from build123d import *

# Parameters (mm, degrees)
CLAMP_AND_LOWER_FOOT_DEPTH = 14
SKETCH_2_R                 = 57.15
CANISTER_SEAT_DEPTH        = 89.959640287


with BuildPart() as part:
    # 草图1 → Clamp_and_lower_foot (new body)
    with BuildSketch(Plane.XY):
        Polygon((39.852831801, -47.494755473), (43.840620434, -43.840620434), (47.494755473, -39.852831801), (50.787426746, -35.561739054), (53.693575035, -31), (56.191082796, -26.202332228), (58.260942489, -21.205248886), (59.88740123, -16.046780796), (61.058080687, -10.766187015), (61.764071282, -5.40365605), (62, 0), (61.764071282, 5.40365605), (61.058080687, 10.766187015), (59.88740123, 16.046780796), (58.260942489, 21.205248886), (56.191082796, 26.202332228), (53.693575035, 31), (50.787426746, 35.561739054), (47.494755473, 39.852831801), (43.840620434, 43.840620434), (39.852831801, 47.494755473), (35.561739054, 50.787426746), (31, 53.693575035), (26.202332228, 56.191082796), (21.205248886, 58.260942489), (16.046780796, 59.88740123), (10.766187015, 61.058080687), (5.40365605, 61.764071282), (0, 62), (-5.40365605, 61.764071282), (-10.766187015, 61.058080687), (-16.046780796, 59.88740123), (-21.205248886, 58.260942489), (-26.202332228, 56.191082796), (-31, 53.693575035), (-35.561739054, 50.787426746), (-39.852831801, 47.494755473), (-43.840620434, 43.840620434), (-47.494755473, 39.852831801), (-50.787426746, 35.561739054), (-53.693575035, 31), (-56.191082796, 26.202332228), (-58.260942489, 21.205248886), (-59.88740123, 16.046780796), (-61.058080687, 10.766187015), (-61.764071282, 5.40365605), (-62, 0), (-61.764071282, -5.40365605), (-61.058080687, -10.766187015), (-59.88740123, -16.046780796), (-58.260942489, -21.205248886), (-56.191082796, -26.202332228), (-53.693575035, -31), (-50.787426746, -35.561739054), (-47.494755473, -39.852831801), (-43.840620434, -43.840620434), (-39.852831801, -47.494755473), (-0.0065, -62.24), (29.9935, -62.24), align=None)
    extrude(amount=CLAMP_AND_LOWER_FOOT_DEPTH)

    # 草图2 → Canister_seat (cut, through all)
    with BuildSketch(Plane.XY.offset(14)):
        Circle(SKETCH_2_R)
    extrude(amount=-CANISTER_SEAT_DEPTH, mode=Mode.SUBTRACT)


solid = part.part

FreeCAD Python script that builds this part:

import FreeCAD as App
import Part
import Sketcher

V = App.Vector
Q = App.Units.Quantity

doc = App.newDocument("Part")
params = doc.addObject("Spreadsheet::Sheet", "Params")
for row, (alias, value) in enumerate([
    ("sketch1_width", "30 mm"),
    ("pad1_length", "14 mm"),
    ("sketch2_diameter", "114.3 mm"),
], start=1):
    params.set(f"A{row}", alias)
    params.set(f"B{row}", "=" + value)
    params.setAlias(f"B{row}", alias)

body = doc.addObject("PartDesign::Body", "Body")

sketch1 = body.newObject("Sketcher::SketchObject", "Sketch")
sketch1.AttachmentSupport = (doc.getObject("XY_Plane"), [""])
sketch1.MapMode = "FlatFace"
sketch1.addGeometry([
    Part.LineSegment(V(40, -47, 0), V(44, -44, 0)),
    Part.LineSegment(V(44, -44, 0), V(47, -40, 0)),
    Part.LineSegment(V(47, -40, 0), V(51, -36, 0)),
    Part.LineSegment(V(51, -36, 0), V(54, -31, 0)),
    Part.LineSegment(V(54, -31, 0), V(56, -26, 0)),
    Part.LineSegment(V(56, -26, 0), V(58, -21, 0)),
    Part.LineSegment(V(58, -21, 0), V(60, -16, 0)),
    Part.LineSegment(V(60, -16, 0), V(61, -11, 0)),
    Part.LineSegment(V(61, -11, 0), V(62, -5, 0)),
    Part.LineSegment(V(62, -5, 0), V(62, 0, 0)),
    Part.LineSegment(V(62, 0, 0), V(62, 5, 0)),
    Part.LineSegment(V(62, 5, 0), V(61, 11, 0)),
    Part.LineSegment(V(61, 11, 0), V(60, 16, 0)),
    Part.LineSegment(V(60, 16, 0), V(58, 21, 0)),
    Part.LineSegment(V(58, 21, 0), V(56, 26, 0)),
    Part.LineSegment(V(56, 26, 0), V(54, 31, 0)),
    Part.LineSegment(V(54, 31, 0), V(51, 36, 0)),
    Part.LineSegment(V(51, 36, 0), V(47, 40, 0)),
    Part.LineSegment(V(47, 40, 0), V(44, 44, 0)),
    Part.LineSegment(V(44, 44, 0), V(40, 47, 0)),
    Part.LineSegment(V(40, 47, 0), V(36, 51, 0)),
    Part.LineSegment(V(36, 51, 0), V(31, 54, 0)),
    Part.LineSegment(V(31, 54, 0), V(26, 56, 0)),
    Part.LineSegment(V(26, 56, 0), V(21, 58, 0)),
    Part.LineSegment(V(21, 58, 0), V(16, 60, 0)),
    Part.LineSegment(V(16, 60, 0), V(11, 61, 0)),
    Part.LineSegment(V(11, 61, 0), V(5, 62, 0)),
    Part.LineSegment(V(5, 62, 0), V(0, 62, 0)),
    Part.LineSegment(V(0, 62, 0), V(-5, 62, 0)),
    Part.LineSegment(V(-5, 62, 0), V(-11, 61, 0)),
    Part.LineSegment(V(-11, 61, 0), V(-16, 60, 0)),
    Part.LineSegment(V(-16, 60, 0), V(-21, 58, 0)),
    Part.LineSegment(V(-21, 58, 0), V(-26, 56, 0)),
    Part.LineSegment(V(-26, 56, 0), V(-31, 54, 0)),
    Part.LineSegment(V(-31, 54, 0), V(-36, 51, 0)),
    Part.LineSegment(V(-36, 51, 0), V(-40, 47, 0)),
    Part.LineSegment(V(-40, 47, 0), V(-44, 44, 0)),
    Part.LineSegment(V(-44, 44, 0), V(-47, 40, 0)),
    Part.LineSegment(V(-47, 40, 0), V(-51, 36, 0)),
    Part.LineSegment(V(-51, 36, 0), V(-54, 31, 0)),
    Part.LineSegment(V(-54, 31, 0), V(-56, 26, 0)),
    Part.LineSegment(V(-56, 26, 0), V(-58, 21, 0)),
    Part.LineSegment(V(-58, 21, 0), V(-60, 16, 0)),
    Part.LineSegment(V(-60, 16, 0), V(-61, 11, 0)),
    Part.LineSegment(V(-61, 11, 0), V(-62, 5, 0)),
    Part.LineSegment(V(-62, 5, 0), V(-62, 0, 0)),
    Part.LineSegment(V(-62, 0, 0), V(-62, -5, 0)),
    Part.LineSegment(V(-62, -5, 0), V(-61, -11, 0)),
    Part.LineSegment(V(-61, -11, 0), V(-60, -16, 0)),
    Part.LineSegment(V(-60, -16, 0), V(-58, -21, 0)),
    Part.LineSegment(V(-58, -21, 0), V(-56, -26, 0)),
    Part.LineSegment(V(-56, -26, 0), V(-54, -31, 0)),
    Part.LineSegment(V(-54, -31, 0), V(-51, -36, 0)),
    Part.LineSegment(V(-51, -36, 0), V(-47, -40, 0)),
    Part.LineSegment(V(-47, -40, 0), V(-44, -44, 0)),
    Part.LineSegment(V(-44, -44, 0), V(-40, -47, 0)),
    Part.LineSegment(V(-40, -47, 0), V(0, -62, 0)),
    Part.LineSegment(V(0, -62, 0), V(30, -62, 0)),
    Part.LineSegment(V(30, -62, 0), V(40, -47, 0)),
], False)
sketch1.addConstraint([
    Sketcher.Constraint("Coincident", 0, 2, 1, 1),
    Sketcher.Constraint("Coincident", 1, 2, 2, 1),
    Sketcher.Constraint("Coincident", 2, 2, 3, 1),
    Sketcher.Constraint("Coincident", 3, 2, 4, 1),
    Sketcher.Constraint("Coincident", 4, 2, 5, 1),
    Sketcher.Constraint("Coincident", 5, 2, 6, 1),
    Sketcher.Constraint("Coincident", 6, 2, 7, 1),
    Sketcher.Constraint("Coincident", 7, 2, 8, 1),
    Sketcher.Constraint("Coincident", 8, 2, 9, 1),
    Sketcher.Constraint("Coincident", 9, 2, 10, 1),
    Sketcher.Constraint("Coincident", 10, 2, 11, 1),
    Sketcher.Constraint("Coincident", 11, 2, 12, 1),
    Sketcher.Constraint("Coincident", 12, 2, 13, 1),
    Sketcher.Constraint("Coincident", 13, 2, 14, 1),
    Sketcher.Constraint("Coincident", 14, 2, 15, 1),
    Sketcher.Constraint("Coincident", 15, 2, 16, 1),
    Sketcher.Constraint("Coincident", 16, 2, 17, 1),
    Sketcher.Constraint("Coincident", 17, 2, 18, 1),
    Sketcher.Constraint("Coincident", 18, 2, 19, 1),
    Sketcher.Constraint("Coincident", 19, 2, 20, 1),
    Sketcher.Constraint("Coincident", 20, 2, 21, 1),
    Sketcher.Constraint("Coincident", 21, 2, 22, 1),
    Sketcher.Constraint("Coincident", 22, 2, 23, 1),
    Sketcher.Constraint("Coincident", 23, 2, 24, 1),
    Sketcher.Constraint("Coincident", 24, 2, 25, 1),
    Sketcher.Constraint("Coincident", 25, 2, 26, 1),
    Sketcher.Constraint("Coincident", 26, 2, 27, 1),
    Sketcher.Constraint("Coincident", 27, 2, 28, 1),
    Sketcher.Constraint("Coincident", 28, 2, 29, 1),
    Sketcher.Constraint("Coincident", 29, 2, 30, 1),
    Sketcher.Constraint("Coincident", 30, 2, 31, 1),
    Sketcher.Constraint("Coincident", 31, 2, 32, 1),
    Sketcher.Constraint("Coincident", 32, 2, 33, 1),
    Sketcher.Constraint("Coincident", 33, 2, 34, 1),
    Sketcher.Constraint("Coincident", 34, 2, 35, 1),
    Sketcher.Constraint("Coincident", 35, 2, 36, 1),
    Sketcher.Constraint("Coincident", 36, 2, 37, 1),
    Sketcher.Constraint("Coincident", 37, 2, 38, 1),
    Sketcher.Constraint("Coincident", 38, 2, 39, 1),
    Sketcher.Constraint("Coincident", 39, 2, 40, 1),
    Sketcher.Constraint("Coincident", 40, 2, 41, 1),
    Sketcher.Constraint("Coincident", 41, 2, 42, 1),
    Sketcher.Constraint("Coincident", 42, 2, 43, 1),
    Sketcher.Constraint("Coincident", 43, 2, 44, 1),
    Sketcher.Constraint("Coincident", 44, 2, 45, 1),
    Sketcher.Constraint("Coincident", 45, 2, 46, 1),
    Sketcher.Constraint("Coincident", 46, 2, 47, 1),
    Sketcher.Constraint("Coincident", 47, 2, 48, 1),
    Sketcher.Constraint("Coincident", 48, 2, 49, 1),
    Sketcher.Constraint("Coincident", 49, 2, 50, 1),
    Sketcher.Constraint("Coincident", 50, 2, 51, 1),
    Sketcher.Constraint("Coincident", 51, 2, 52, 1),
    Sketcher.Constraint("Coincident", 52, 2, 53, 1),
    Sketcher.Constraint("Coincident", 53, 2, 54, 1),
    Sketcher.Constraint("Coincident", 54, 2, 55, 1),
    Sketcher.Constraint("Coincident", 55, 2, 56, 1),
    Sketcher.Constraint("Coincident", 56, 2, 57, 1),
    Sketcher.Constraint("Coincident", 57, 2, 58, 1),
    Sketcher.Constraint("Coincident", 58, 2, 0, 1),
    Sketcher.Constraint("Horizontal", 57),
    Sketcher.Constraint("Symmetric", 0, 2, 36, 2, -1, 1),
    Sketcher.Constraint("Symmetric", 1, 2, 37, 2, -1, 1),
    Sketcher.Constraint("Symmetric", 2, 2, 38, 2, -1, 1),
    Sketcher.Constraint("Symmetric", 3, 2, 39, 2, -1, 1),
    Sketcher.Constraint("Symmetric", 4, 2, 40, 2, -1, 1),
    Sketcher.Constraint("Symmetric", 5, 2, 41, 2, -1, 1),
    Sketcher.Constraint("Symmetric", 6, 2, 42, 2, -1, 1),
    Sketcher.Constraint("Symmetric", 7, 2, 43, 2, -1, 1),
    Sketcher.Constraint("Symmetric", 8, 2, 44, 2, -1, 1),
    Sketcher.Constraint("Symmetric", 9, 2, 45, 2, -1, 1),
    Sketcher.Constraint("Symmetric", 10, 2, 46, 2, -1, 1),
    Sketcher.Constraint("Symmetric", 11, 2, 47, 2, -1, 1),
    Sketcher.Constraint("Symmetric", 12, 2, 48, 2, -1, 1),
    Sketcher.Constraint("Symmetric", 13, 2, 49, 2, -1, 1),
    Sketcher.Constraint("Symmetric", 14, 2, 50, 2, -1, 1),
    Sketcher.Constraint("Symmetric", 15, 2, 51, 2, -1, 1),
    Sketcher.Constraint("Symmetric", 16, 2, 52, 2, -1, 1),
    Sketcher.Constraint("Symmetric", 17, 2, 53, 2, -1, 1),
    Sketcher.Constraint("Symmetric", 18, 2, 54, 2, -1, 1),
    Sketcher.Constraint("Symmetric", 19, 2, 55, 2, -1, 1),
    Sketcher.Constraint("Symmetric", 35, 2, 58, 2, -1, 1),
    Sketcher.Constraint("Symmetric", 26, 2, 28, 2, -2),
    Sketcher.Constraint("Symmetric", 25, 2, 29, 2, -2),
    Sketcher.Constraint("Symmetric", 24, 2, 30, 2, -2),
    Sketcher.Constraint("Symmetric", 23, 2, 31, 2, -2),
    Sketcher.Constraint("Symmetric", 22, 2, 32, 2, -2),
    Sketcher.Constraint("Symmetric", 21, 2, 33, 2, -2),
    Sketcher.Constraint("Symmetric", 20, 2, 34, 2, -2),
    Sketcher.Constraint("Symmetric", 19, 2, 35, 2, -2),
    Sketcher.Constraint("Symmetric", 18, 2, 36, 2, -2),
    Sketcher.Constraint("Symmetric", 17, 2, 37, 2, -2),
    Sketcher.Constraint("Symmetric", 16, 2, 38, 2, -2),
    Sketcher.Constraint("Symmetric", 15, 2, 39, 2, -2),
    Sketcher.Constraint("Symmetric", 14, 2, 40, 2, -2),
    Sketcher.Constraint("Symmetric", 13, 2, 41, 2, -2),
    Sketcher.Constraint("Symmetric", 12, 2, 42, 2, -2),
    Sketcher.Constraint("Symmetric", 11, 2, 43, 2, -2),
    Sketcher.Constraint("Symmetric", 10, 2, 44, 2, -2),
    Sketcher.Constraint("PointOnObject", 9, 2, -1),
    Sketcher.Constraint("PointOnObject", 27, 2, -2),
    Sketcher.Constraint("Perpendicular", 0, 18),
    Sketcher.Constraint("Perpendicular", 2, 20),
    Sketcher.Constraint("Perpendicular", 3, 21),
    Sketcher.Constraint("Perpendicular", 4, 22),
    Sketcher.Constraint("Perpendicular", 5, 23),
    Sketcher.Constraint("Perpendicular", 6, 24),
    Sketcher.Constraint("Perpendicular", 7, 25),
    Sketcher.Constraint("Perpendicular", 8, 26),
    Sketcher.Constraint("Perpendicular", 9, 27),
    Sketcher.Constraint("Equal", 0, 1),
    Sketcher.Constraint("Equal", 1, 2),
    Sketcher.Constraint("Equal", 2, 3),
    Sketcher.Constraint("Equal", 3, 4),
    Sketcher.Constraint("Equal", 4, 5),
    Sketcher.Constraint("Equal", 5, 6),
    Sketcher.Constraint("Equal", 6, 7),
    Sketcher.Constraint("Equal", 7, 8),
    Sketcher.Constraint("Equal", 8, 9),
    Sketcher.Constraint("Equal", 19, 20),
    Sketcher.Constraint("Equal", 20, 21),
    Sketcher.Constraint("Equal", 21, 22),
    Sketcher.Constraint("Equal", 22, 23),
    Sketcher.Constraint("Equal", 23, 24),
    Sketcher.Constraint("Equal", 24, 25),
    Sketcher.Constraint("Equal", 25, 26),
    Sketcher.Constraint("Equal", 26, 27),
    Sketcher.Constraint("DistanceX", 57, 1, 57, 2, 30.0),
    Sketcher.Constraint("DistanceY", 3, 2, -1, 1, 31.0),
    Sketcher.Constraint("DistanceX", -1, 1, 9, 2, 62.0),
    Sketcher.Constraint("Angle", 0, Q("42.5 deg")),
    Sketcher.Constraint("Angle", 2, Q("52.5 deg")),
    Sketcher.Constraint("Angle", 3, Q("57.5 deg")),
    Sketcher.Constraint("Angle", 4, Q("62.5 deg")),
    Sketcher.Constraint("Angle", 5, Q("67.5 deg")),
    Sketcher.Constraint("Angle", 6, Q("72.5 deg")),
    Sketcher.Constraint("Angle", 7, Q("77.5 deg")),
    Sketcher.Constraint("Angle", 8, Q("82.5 deg")),
    Sketcher.Constraint("DistanceY", 56, 2, -1, 1, 62.24),
    Sketcher.Constraint("DistanceX", 56, 2, -1, 1, 0.0065),
])
sketch1.setExpression("Constraints[126]", "Params.sketch1_width")
pad1 = body.newObject("PartDesign::Pad", "Pad")
pad1.Profile = sketch1
pad1.setExpression("Length", "Params.pad1_length")

sketch2 = body.newObject("Sketcher::SketchObject", "Sketch001")
sketch2.AttachmentSupport = (doc.getObject("XY_Plane"), [""])
sketch2.MapMode = "FlatFace"
sketch2.AttachmentOffset = App.Placement(V(0, 0, 14), App.Rotation())
sketch2.addGeometry(Part.Circle(V(0, 0, 0), V(0, 0, 1), 57), False)
sketch2.addConstraint([
    Sketcher.Constraint("Coincident", 0, 3, -1, 1),
    Sketcher.Constraint("Diameter", 0, 114.3),
])
sketch2.setExpression("Constraints[1]", "Params.sketch2_diameter")
pocket1 = body.newObject("PartDesign::Pocket", "Pocket")
pocket1.Profile = sketch2
pocket1.Type = "ThroughAll"

doc.recompute()
